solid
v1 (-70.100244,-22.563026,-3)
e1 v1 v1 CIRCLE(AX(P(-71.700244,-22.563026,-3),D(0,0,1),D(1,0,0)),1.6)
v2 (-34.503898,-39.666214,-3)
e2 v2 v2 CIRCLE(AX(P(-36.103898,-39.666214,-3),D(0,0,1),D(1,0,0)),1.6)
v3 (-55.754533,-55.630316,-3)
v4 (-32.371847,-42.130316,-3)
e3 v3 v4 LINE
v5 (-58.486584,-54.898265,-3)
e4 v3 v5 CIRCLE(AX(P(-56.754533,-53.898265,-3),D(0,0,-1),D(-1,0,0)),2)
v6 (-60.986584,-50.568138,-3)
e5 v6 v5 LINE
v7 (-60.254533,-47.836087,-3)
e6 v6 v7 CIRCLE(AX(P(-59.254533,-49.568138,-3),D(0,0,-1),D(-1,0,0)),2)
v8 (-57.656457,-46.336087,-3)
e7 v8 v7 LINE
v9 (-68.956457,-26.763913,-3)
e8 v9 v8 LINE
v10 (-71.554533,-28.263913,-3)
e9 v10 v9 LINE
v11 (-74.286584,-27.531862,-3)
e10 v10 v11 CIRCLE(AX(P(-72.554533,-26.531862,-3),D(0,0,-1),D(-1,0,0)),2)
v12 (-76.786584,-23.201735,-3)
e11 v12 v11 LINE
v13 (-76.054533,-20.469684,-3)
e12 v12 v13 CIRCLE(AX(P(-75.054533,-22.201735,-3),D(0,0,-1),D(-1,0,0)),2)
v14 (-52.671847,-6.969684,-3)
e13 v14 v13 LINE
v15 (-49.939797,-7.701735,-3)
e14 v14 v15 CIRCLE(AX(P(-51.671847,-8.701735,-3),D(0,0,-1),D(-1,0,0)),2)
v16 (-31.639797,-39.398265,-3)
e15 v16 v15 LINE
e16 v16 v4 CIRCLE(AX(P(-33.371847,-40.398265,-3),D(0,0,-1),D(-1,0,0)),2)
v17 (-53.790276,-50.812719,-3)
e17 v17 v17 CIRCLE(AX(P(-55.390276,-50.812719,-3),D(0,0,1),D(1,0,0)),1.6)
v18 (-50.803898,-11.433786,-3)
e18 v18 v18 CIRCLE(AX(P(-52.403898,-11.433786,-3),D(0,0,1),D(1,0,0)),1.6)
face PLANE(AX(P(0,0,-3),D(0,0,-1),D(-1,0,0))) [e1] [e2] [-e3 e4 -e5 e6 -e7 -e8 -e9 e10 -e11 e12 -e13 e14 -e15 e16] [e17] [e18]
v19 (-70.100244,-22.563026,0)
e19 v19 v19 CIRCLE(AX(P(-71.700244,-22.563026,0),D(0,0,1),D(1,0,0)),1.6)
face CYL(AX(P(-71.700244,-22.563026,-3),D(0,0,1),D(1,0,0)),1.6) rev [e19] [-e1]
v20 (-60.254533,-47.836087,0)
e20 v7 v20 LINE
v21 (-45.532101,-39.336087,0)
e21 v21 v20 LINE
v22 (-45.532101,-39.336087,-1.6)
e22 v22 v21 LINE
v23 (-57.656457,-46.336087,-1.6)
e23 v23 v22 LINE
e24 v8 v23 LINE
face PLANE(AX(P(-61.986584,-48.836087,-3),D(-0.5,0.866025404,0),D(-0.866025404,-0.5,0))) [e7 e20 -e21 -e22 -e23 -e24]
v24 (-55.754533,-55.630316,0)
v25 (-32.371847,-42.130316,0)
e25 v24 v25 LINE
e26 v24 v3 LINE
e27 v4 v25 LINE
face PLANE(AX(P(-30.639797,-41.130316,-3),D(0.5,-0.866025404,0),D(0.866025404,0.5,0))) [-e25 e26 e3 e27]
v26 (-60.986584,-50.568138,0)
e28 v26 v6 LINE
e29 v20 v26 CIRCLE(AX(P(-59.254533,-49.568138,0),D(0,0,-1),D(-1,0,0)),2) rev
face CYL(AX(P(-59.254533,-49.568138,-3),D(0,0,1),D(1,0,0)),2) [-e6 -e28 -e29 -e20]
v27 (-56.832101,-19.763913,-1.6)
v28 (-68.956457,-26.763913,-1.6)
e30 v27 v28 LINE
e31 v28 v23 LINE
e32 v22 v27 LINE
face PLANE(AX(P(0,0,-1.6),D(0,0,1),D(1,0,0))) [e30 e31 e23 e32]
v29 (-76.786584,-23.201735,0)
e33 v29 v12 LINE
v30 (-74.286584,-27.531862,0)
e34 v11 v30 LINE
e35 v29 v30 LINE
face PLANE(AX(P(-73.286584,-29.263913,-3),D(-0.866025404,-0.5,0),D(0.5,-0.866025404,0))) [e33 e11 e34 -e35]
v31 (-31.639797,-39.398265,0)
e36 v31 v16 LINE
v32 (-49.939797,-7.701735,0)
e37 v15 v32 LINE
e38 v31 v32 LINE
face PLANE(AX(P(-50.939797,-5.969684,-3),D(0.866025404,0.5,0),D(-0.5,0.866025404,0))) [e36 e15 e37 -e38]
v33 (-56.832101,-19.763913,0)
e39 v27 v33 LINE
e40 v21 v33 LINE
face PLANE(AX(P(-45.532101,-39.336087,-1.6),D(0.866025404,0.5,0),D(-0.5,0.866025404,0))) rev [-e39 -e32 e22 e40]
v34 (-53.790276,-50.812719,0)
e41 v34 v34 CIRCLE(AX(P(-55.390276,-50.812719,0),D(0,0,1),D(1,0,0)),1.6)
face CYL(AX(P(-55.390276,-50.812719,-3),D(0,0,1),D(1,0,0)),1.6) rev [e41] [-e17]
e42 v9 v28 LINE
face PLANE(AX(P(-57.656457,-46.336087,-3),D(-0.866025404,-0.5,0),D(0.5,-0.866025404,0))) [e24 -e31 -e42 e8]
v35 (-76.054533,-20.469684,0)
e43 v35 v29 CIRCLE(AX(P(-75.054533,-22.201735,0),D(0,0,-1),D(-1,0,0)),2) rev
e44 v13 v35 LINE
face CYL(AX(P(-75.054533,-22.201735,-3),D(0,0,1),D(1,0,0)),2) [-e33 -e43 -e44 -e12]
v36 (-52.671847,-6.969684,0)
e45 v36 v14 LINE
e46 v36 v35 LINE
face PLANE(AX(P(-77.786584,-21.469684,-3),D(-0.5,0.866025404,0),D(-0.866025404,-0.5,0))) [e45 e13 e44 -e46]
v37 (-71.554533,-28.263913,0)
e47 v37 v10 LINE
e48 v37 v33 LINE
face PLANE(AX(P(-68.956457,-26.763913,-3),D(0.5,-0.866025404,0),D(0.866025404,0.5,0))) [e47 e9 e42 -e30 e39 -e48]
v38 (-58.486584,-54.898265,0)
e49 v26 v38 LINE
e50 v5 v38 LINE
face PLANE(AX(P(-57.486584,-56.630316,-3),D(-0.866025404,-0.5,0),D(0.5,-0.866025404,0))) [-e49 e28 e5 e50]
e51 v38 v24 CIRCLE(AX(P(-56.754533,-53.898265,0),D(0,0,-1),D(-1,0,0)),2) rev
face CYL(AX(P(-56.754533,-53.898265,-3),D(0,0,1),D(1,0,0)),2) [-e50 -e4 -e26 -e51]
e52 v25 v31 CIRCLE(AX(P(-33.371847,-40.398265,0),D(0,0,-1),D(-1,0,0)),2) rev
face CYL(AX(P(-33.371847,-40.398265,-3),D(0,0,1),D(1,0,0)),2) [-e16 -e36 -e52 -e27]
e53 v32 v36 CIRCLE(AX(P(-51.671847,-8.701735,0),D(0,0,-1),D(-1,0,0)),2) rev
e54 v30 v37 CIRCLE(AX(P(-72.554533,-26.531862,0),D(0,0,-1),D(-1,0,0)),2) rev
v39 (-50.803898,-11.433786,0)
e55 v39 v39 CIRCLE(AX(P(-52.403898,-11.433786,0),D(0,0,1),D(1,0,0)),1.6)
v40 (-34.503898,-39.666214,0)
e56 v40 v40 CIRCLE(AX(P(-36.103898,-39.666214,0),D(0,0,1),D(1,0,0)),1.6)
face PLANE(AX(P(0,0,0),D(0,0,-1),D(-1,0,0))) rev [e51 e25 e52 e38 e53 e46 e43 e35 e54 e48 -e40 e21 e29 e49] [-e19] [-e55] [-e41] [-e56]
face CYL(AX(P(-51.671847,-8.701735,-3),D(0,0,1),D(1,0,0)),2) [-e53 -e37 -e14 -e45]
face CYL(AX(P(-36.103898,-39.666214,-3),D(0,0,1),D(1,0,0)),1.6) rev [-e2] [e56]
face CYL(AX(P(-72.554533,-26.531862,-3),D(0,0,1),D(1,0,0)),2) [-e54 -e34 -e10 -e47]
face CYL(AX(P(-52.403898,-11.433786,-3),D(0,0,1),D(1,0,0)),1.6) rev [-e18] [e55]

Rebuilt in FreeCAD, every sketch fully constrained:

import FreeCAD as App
import Part
import Sketcher
Q = App.Units.Quantity


def edges_at(feature, points):
    """Names of the edges that pass closest to the given points."""
    edges = feature.Shape.Edges
    near = lambda p: min(range(len(edges)), key=lambda i: edges[i].distToShape(Part.Vertex(*p))[0])
    return sorted({f"Edge{near(p) + 1}" for p in points})


def add_polygon(sketch, points):
    """Adds a closed chain of lines whose ends are joined by coincident constraints."""
    first, n = sketch.GeometryCount, len(points)
    for a, b in zip(points, points[1:] + points[:1]):
        sketch.addGeometry(Part.LineSegment(App.Vector(*a, 0), App.Vector(*b, 0)), False)
    for i in range(n):
        sketch.addConstraint(Sketcher.Constraint("Coincident", first + i, 2, first + (i + 1) % n, 1))

doc = App.newDocument("Part")
body = doc.addObject("PartDesign::Body", "Body")

# Sketch on XY plane
sketch1 = body.newObject("Sketcher::SketchObject", "Sketch")
sketch1.AttachmentSupport = (doc.getObject("XY_Plane"), [""])
sketch1.MapMode = "FlatFace"
add_polygon(sketch1, [(-50.9, -6), (-77.8, -21.5), (-73.3, -29.3), (-69, -26.8), (-57.7, -46.3), (-62, -48.8), (-57.5, -56.6), (-30.6, -41.1)])  # lines 0-7
sketch1.addGeometry(Part.Circle(App.Vector(-36.1, -39.7, 0), App.Vector(0, 0, 1), 1.6), False)  # 8
sketch1.addGeometry(Part.Circle(App.Vector(-55.4, -50.8, 0), App.Vector(0, 0, 1), 1.6), False)  # 9
sketch1.addGeometry(Part.Circle(App.Vector(-52.4, -11.4, 0), App.Vector(0, 0, 1), 1.6), False)  # 10
sketch1.addGeometry(Part.Circle(App.Vector(-71.7, -22.6, 0), App.Vector(0, 0, 1), 1.6), False)  # 11
sketch1.addConstraint(Sketcher.Constraint("Equal", 8, 9))
sketch1.addConstraint(Sketcher.Constraint("Equal", 9, 10))
sketch1.addConstraint(Sketcher.Constraint("Equal", 10, 11))
sketch1.addConstraint(Sketcher.Constraint("Perpendicular", 0, 1))
sketch1.addConstraint(Sketcher.Constraint("Perpendicular", 1, 2))
sketch1.addConstraint(Sketcher.Constraint("Perpendicular", 2, 3))
sketch1.addConstraint(Sketcher.Constraint("Perpendicular", 3, 4))
sketch1.addConstraint(Sketcher.Constraint("Perpendicular", 4, 5))
sketch1.addConstraint(Sketcher.Constraint("Perpendicular", 5, 6))
sketch1.addConstraint(Sketcher.Constraint("Perpendicular", 6, 7))
sketch1.addConstraint(Sketcher.Constraint("Equal", 2, 4))
sketch1.addConstraint(Sketcher.Constraint("Equal", 1, 5))
sketch1.addConstraint(Sketcher.Constraint("Diameter", 8, 3.2))
sketch1.addConstraint(Sketcher.Constraint("Angle", 0, Q("-150 deg")))
sketch1.addConstraint(Sketcher.Constraint("Distance", 0, 31.0))
sketch1.addConstraint(Sketcher.Constraint("Distance", 1, 9.0))
sketch1.addConstraint(Sketcher.Constraint("Distance", 2, 5.0))
sketch1.addConstraint(Sketcher.Constraint("Distance", 3, 22.6))
sketch1.addConstraint(Sketcher.Constraint("DistanceX", 10, 3, 8, 3, 16.3))
sketch1.addConstraint(Sketcher.Constraint("DistanceX", 8, 3, -1, 1, 36.103898))
sketch1.addConstraint(Sketcher.Constraint("DistanceY", 0, 2, 10, 3, 10.035898))
sketch1.addConstraint(Sketcher.Constraint("DistanceY", 8, 3, 1, 2, 10.402301))
sketch1.addConstraint(Sketcher.Constraint("DistanceX", 8, 3, 6, 2, 5.464102))
sketch1.addConstraint(Sketcher.Constraint("DistanceY", 9, 3, -1, 1, 50.812719))
sketch1.addConstraint(Sketcher.Constraint("DistanceY", 11, 3, 10, 3, 11.12924))
sketch1.addConstraint(Sketcher.Constraint("DistanceX", 0, 2, 11, 3, 6.08634))
sketch1.addConstraint(Sketcher.Constraint("DistanceX", 0, 2, 9, 3, 22.396308))
sketch1.addConstraint(Sketcher.Constraint("DistanceY", 8, 3, -1, 1, 39.666214))
pad1 = body.newObject("PartDesign::Pad", "Pad")
pad1.Profile = sketch1
pad1.Length = 3
pad1.Reversed = True
doc.recompute()

fillet = body.newObject("PartDesign::Fillet", "Fillet")
fillet.Base = (pad1, edges_at(pad1, [
    (-77.787, -21.47, -1.5),
    (-50.94, -5.97, -1.5),
    (-30.64, -41.13, -1.5),
    (-57.487, -56.63, -1.5),
    (-61.987, -48.836, -1.5),
    (-73.287, -29.264, -1.5),
]))
fillet.Radius = 2

# Sketch on XY plane
sketch2 = body.newObject("Sketcher::SketchObject", "Sketch001")
sketch2.AttachmentSupport = (doc.getObject("XY_Plane"), [""])
sketch2.MapMode = "FlatFace"
add_polygon(sketch2, [(-69, -27), (-58, -46), (-46, -39), (-57, -20)])  # lines 0-3
sketch2.addConstraint(Sketcher.Constraint("Perpendicular", 0, 1))
sketch2.addConstraint(Sketcher.Constraint("Perpendicular", 1, 2))
sketch2.addConstraint(Sketcher.Constraint("Perpendicular", 2, 3))
sketch2.addConstraint(Sketcher.Constraint("Angle", 0, Q("-60 deg")))
sketch2.addConstraint(Sketcher.Constraint("Distance", 1, 14.0))
sketch2.addConstraint(Sketcher.Constraint("Distance", 0, 22.6))
sketch2.addConstraint(Sketcher.Constraint("DistanceX", 1, 2, -1, 1, 45.532101))
sketch2.addConstraint(Sketcher.Constraint("DistanceY", 0, 2, -1, 1, 46.336087))
pocket1 = body.newObject("PartDesign::Pocket", "Pocket")
pocket1.Profile = sketch2
pocket1.Length = 1.6

doc.recompute()
